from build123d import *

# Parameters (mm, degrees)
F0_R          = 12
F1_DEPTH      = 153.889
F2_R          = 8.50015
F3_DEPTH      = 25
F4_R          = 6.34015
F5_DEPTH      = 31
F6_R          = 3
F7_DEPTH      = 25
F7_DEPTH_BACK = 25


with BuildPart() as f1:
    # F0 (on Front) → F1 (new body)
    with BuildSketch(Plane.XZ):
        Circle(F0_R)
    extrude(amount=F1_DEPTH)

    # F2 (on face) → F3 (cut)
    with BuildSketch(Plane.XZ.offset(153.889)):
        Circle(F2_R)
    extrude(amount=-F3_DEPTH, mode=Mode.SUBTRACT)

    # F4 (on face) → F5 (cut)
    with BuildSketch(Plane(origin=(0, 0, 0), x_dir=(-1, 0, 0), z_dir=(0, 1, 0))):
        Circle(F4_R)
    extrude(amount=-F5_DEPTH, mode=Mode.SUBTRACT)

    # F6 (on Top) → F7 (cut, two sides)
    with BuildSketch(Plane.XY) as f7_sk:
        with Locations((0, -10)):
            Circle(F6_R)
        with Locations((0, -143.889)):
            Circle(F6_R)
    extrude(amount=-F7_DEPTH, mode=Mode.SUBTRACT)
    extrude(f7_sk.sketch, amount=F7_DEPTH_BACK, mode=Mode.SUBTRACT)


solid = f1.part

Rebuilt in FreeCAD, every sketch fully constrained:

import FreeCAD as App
import Part
import Sketcher
from FreeCAD import Vector

doc = App.newDocument("Part")
params = doc.addObject("Spreadsheet::Sheet", "Params")
for row, (alias, value) in enumerate([
    ("sketch1_diameter", "24 mm"),
    ("pad1_length", "153.889 mm"),
    ("pocket1_length", "25 mm"),
    ("pocket2_length", "31 mm"),
    ("sketch4_diameter", "6 mm"),
], start=1):
    params.set(f"A{row}", alias)
    params.set(f"B{row}", "=" + value)
    params.setAlias(f"B{row}", alias)

body = doc.addObject("PartDesign::Body", "Body")

# Sketch on XZ plane
sketch1 = body.newObject("Sketcher::SketchObject", "Sketch")
sketch1.AttachmentSupport = (doc.getObject("XZ_Plane"), [""])
sketch1.MapMode = "FlatFace"
sketch1.addGeometry(Part.Circle(Vector(0, 0, 0), Vector(0, 0, 1), 12), False)
sketch1.addConstraint([
    Sketcher.Constraint("Coincident", 0, 3, -1, 1),
    Sketcher.Constraint("Diameter", 0, 24.0),
])
sketch1.setExpression("Constraints[1]", "Params.sketch1_diameter")
pad1 = body.newObject("PartDesign::Pad", "Pad")
pad1.Profile = sketch1
pad1.setExpression("Length", "Params.pad1_length")

# Sketch on XZ plane
sketch2 = body.newObject("Sketcher::SketchObject", "Sketch001")
sketch2.AttachmentSupport = (doc.getObject("XZ_Plane"), [""])
sketch2.MapMode = "FlatFace"
sketch2.AttachmentOffset = App.Placement(Vector(0, 0, 153.889), App.Rotation())
sketch2.addGeometry(Part.Circle(Vector(0, 0, 0), Vector(0, 0, 1), 9), False)
sketch2.addConstraint([
    Sketcher.Constraint("Coincident", 0, 3, -1, 1),
    Sketcher.Constraint("Diameter", 0, 17.0003),
])
pocket1 = body.newObject("PartDesign::Pocket", "Pocket")
pocket1.Profile = sketch2
pocket1.setExpression("Length", "Params.pocket1_length")

# Sketch on XZ plane
sketch3 = body.newObject("Sketcher::SketchObject", "Sketch002")
sketch3.AttachmentSupport = (doc.getObject("XZ_Plane"), [""])
sketch3.MapMode = "FlatFace"
sketch3.addGeometry(Part.Circle(Vector(0, 0, 0), Vector(0, 0, 1), 6), False)
sketch3.addConstraint([
    Sketcher.Constraint("Coincident", 0, 3, -1, 1),
    Sketcher.Constraint("Diameter", 0, 12.6803),
])
pocket2 = body.newObject("PartDesign::Pocket", "Pocket001")
pocket2.Profile = sketch3
pocket2.setExpression("Length", "Params.pocket2_length")
pocket2.Reversed = True

# Sketch on XY plane
sketch4 = body.newObject("Sketcher::SketchObject", "Sketch003")
sketch4.AttachmentSupport = (doc.getObject("XY_Plane"), [""])
sketch4.MapMode = "FlatFace"
sketch4.addGeometry([
    Part.Circle(Vector(0, -10, 0), Vector(0, 0, 1), 3),
    Part.Circle(Vector(0, -143.9, 0), Vector(0, 0, 1), 3),
], False)
sketch4.addConstraint([
    Sketcher.Constraint("Equal", 0, 1),
    Sketcher.Constraint("PointOnObject", 0, 3, -2),
    Sketcher.Constraint("PointOnObject", 1, 3, -2),
    Sketcher.Constraint("Diameter", 0, 6.0),
    Sketcher.Constraint("DistanceY", 0, 3, -1, 1, 10.0),
    Sketcher.Constraint("DistanceY", 1, 3, -1, 1, 143.889),
])
sketch4.setExpression("Constraints[3]", "Params.sketch4_diameter")
pocket3 = body.newObject("PartDesign::Pocket", "Pocket002")
pocket3.Profile = sketch4
pocket3.Type = "ThroughAll"
pocket3.Midplane = True

doc.recompute()
